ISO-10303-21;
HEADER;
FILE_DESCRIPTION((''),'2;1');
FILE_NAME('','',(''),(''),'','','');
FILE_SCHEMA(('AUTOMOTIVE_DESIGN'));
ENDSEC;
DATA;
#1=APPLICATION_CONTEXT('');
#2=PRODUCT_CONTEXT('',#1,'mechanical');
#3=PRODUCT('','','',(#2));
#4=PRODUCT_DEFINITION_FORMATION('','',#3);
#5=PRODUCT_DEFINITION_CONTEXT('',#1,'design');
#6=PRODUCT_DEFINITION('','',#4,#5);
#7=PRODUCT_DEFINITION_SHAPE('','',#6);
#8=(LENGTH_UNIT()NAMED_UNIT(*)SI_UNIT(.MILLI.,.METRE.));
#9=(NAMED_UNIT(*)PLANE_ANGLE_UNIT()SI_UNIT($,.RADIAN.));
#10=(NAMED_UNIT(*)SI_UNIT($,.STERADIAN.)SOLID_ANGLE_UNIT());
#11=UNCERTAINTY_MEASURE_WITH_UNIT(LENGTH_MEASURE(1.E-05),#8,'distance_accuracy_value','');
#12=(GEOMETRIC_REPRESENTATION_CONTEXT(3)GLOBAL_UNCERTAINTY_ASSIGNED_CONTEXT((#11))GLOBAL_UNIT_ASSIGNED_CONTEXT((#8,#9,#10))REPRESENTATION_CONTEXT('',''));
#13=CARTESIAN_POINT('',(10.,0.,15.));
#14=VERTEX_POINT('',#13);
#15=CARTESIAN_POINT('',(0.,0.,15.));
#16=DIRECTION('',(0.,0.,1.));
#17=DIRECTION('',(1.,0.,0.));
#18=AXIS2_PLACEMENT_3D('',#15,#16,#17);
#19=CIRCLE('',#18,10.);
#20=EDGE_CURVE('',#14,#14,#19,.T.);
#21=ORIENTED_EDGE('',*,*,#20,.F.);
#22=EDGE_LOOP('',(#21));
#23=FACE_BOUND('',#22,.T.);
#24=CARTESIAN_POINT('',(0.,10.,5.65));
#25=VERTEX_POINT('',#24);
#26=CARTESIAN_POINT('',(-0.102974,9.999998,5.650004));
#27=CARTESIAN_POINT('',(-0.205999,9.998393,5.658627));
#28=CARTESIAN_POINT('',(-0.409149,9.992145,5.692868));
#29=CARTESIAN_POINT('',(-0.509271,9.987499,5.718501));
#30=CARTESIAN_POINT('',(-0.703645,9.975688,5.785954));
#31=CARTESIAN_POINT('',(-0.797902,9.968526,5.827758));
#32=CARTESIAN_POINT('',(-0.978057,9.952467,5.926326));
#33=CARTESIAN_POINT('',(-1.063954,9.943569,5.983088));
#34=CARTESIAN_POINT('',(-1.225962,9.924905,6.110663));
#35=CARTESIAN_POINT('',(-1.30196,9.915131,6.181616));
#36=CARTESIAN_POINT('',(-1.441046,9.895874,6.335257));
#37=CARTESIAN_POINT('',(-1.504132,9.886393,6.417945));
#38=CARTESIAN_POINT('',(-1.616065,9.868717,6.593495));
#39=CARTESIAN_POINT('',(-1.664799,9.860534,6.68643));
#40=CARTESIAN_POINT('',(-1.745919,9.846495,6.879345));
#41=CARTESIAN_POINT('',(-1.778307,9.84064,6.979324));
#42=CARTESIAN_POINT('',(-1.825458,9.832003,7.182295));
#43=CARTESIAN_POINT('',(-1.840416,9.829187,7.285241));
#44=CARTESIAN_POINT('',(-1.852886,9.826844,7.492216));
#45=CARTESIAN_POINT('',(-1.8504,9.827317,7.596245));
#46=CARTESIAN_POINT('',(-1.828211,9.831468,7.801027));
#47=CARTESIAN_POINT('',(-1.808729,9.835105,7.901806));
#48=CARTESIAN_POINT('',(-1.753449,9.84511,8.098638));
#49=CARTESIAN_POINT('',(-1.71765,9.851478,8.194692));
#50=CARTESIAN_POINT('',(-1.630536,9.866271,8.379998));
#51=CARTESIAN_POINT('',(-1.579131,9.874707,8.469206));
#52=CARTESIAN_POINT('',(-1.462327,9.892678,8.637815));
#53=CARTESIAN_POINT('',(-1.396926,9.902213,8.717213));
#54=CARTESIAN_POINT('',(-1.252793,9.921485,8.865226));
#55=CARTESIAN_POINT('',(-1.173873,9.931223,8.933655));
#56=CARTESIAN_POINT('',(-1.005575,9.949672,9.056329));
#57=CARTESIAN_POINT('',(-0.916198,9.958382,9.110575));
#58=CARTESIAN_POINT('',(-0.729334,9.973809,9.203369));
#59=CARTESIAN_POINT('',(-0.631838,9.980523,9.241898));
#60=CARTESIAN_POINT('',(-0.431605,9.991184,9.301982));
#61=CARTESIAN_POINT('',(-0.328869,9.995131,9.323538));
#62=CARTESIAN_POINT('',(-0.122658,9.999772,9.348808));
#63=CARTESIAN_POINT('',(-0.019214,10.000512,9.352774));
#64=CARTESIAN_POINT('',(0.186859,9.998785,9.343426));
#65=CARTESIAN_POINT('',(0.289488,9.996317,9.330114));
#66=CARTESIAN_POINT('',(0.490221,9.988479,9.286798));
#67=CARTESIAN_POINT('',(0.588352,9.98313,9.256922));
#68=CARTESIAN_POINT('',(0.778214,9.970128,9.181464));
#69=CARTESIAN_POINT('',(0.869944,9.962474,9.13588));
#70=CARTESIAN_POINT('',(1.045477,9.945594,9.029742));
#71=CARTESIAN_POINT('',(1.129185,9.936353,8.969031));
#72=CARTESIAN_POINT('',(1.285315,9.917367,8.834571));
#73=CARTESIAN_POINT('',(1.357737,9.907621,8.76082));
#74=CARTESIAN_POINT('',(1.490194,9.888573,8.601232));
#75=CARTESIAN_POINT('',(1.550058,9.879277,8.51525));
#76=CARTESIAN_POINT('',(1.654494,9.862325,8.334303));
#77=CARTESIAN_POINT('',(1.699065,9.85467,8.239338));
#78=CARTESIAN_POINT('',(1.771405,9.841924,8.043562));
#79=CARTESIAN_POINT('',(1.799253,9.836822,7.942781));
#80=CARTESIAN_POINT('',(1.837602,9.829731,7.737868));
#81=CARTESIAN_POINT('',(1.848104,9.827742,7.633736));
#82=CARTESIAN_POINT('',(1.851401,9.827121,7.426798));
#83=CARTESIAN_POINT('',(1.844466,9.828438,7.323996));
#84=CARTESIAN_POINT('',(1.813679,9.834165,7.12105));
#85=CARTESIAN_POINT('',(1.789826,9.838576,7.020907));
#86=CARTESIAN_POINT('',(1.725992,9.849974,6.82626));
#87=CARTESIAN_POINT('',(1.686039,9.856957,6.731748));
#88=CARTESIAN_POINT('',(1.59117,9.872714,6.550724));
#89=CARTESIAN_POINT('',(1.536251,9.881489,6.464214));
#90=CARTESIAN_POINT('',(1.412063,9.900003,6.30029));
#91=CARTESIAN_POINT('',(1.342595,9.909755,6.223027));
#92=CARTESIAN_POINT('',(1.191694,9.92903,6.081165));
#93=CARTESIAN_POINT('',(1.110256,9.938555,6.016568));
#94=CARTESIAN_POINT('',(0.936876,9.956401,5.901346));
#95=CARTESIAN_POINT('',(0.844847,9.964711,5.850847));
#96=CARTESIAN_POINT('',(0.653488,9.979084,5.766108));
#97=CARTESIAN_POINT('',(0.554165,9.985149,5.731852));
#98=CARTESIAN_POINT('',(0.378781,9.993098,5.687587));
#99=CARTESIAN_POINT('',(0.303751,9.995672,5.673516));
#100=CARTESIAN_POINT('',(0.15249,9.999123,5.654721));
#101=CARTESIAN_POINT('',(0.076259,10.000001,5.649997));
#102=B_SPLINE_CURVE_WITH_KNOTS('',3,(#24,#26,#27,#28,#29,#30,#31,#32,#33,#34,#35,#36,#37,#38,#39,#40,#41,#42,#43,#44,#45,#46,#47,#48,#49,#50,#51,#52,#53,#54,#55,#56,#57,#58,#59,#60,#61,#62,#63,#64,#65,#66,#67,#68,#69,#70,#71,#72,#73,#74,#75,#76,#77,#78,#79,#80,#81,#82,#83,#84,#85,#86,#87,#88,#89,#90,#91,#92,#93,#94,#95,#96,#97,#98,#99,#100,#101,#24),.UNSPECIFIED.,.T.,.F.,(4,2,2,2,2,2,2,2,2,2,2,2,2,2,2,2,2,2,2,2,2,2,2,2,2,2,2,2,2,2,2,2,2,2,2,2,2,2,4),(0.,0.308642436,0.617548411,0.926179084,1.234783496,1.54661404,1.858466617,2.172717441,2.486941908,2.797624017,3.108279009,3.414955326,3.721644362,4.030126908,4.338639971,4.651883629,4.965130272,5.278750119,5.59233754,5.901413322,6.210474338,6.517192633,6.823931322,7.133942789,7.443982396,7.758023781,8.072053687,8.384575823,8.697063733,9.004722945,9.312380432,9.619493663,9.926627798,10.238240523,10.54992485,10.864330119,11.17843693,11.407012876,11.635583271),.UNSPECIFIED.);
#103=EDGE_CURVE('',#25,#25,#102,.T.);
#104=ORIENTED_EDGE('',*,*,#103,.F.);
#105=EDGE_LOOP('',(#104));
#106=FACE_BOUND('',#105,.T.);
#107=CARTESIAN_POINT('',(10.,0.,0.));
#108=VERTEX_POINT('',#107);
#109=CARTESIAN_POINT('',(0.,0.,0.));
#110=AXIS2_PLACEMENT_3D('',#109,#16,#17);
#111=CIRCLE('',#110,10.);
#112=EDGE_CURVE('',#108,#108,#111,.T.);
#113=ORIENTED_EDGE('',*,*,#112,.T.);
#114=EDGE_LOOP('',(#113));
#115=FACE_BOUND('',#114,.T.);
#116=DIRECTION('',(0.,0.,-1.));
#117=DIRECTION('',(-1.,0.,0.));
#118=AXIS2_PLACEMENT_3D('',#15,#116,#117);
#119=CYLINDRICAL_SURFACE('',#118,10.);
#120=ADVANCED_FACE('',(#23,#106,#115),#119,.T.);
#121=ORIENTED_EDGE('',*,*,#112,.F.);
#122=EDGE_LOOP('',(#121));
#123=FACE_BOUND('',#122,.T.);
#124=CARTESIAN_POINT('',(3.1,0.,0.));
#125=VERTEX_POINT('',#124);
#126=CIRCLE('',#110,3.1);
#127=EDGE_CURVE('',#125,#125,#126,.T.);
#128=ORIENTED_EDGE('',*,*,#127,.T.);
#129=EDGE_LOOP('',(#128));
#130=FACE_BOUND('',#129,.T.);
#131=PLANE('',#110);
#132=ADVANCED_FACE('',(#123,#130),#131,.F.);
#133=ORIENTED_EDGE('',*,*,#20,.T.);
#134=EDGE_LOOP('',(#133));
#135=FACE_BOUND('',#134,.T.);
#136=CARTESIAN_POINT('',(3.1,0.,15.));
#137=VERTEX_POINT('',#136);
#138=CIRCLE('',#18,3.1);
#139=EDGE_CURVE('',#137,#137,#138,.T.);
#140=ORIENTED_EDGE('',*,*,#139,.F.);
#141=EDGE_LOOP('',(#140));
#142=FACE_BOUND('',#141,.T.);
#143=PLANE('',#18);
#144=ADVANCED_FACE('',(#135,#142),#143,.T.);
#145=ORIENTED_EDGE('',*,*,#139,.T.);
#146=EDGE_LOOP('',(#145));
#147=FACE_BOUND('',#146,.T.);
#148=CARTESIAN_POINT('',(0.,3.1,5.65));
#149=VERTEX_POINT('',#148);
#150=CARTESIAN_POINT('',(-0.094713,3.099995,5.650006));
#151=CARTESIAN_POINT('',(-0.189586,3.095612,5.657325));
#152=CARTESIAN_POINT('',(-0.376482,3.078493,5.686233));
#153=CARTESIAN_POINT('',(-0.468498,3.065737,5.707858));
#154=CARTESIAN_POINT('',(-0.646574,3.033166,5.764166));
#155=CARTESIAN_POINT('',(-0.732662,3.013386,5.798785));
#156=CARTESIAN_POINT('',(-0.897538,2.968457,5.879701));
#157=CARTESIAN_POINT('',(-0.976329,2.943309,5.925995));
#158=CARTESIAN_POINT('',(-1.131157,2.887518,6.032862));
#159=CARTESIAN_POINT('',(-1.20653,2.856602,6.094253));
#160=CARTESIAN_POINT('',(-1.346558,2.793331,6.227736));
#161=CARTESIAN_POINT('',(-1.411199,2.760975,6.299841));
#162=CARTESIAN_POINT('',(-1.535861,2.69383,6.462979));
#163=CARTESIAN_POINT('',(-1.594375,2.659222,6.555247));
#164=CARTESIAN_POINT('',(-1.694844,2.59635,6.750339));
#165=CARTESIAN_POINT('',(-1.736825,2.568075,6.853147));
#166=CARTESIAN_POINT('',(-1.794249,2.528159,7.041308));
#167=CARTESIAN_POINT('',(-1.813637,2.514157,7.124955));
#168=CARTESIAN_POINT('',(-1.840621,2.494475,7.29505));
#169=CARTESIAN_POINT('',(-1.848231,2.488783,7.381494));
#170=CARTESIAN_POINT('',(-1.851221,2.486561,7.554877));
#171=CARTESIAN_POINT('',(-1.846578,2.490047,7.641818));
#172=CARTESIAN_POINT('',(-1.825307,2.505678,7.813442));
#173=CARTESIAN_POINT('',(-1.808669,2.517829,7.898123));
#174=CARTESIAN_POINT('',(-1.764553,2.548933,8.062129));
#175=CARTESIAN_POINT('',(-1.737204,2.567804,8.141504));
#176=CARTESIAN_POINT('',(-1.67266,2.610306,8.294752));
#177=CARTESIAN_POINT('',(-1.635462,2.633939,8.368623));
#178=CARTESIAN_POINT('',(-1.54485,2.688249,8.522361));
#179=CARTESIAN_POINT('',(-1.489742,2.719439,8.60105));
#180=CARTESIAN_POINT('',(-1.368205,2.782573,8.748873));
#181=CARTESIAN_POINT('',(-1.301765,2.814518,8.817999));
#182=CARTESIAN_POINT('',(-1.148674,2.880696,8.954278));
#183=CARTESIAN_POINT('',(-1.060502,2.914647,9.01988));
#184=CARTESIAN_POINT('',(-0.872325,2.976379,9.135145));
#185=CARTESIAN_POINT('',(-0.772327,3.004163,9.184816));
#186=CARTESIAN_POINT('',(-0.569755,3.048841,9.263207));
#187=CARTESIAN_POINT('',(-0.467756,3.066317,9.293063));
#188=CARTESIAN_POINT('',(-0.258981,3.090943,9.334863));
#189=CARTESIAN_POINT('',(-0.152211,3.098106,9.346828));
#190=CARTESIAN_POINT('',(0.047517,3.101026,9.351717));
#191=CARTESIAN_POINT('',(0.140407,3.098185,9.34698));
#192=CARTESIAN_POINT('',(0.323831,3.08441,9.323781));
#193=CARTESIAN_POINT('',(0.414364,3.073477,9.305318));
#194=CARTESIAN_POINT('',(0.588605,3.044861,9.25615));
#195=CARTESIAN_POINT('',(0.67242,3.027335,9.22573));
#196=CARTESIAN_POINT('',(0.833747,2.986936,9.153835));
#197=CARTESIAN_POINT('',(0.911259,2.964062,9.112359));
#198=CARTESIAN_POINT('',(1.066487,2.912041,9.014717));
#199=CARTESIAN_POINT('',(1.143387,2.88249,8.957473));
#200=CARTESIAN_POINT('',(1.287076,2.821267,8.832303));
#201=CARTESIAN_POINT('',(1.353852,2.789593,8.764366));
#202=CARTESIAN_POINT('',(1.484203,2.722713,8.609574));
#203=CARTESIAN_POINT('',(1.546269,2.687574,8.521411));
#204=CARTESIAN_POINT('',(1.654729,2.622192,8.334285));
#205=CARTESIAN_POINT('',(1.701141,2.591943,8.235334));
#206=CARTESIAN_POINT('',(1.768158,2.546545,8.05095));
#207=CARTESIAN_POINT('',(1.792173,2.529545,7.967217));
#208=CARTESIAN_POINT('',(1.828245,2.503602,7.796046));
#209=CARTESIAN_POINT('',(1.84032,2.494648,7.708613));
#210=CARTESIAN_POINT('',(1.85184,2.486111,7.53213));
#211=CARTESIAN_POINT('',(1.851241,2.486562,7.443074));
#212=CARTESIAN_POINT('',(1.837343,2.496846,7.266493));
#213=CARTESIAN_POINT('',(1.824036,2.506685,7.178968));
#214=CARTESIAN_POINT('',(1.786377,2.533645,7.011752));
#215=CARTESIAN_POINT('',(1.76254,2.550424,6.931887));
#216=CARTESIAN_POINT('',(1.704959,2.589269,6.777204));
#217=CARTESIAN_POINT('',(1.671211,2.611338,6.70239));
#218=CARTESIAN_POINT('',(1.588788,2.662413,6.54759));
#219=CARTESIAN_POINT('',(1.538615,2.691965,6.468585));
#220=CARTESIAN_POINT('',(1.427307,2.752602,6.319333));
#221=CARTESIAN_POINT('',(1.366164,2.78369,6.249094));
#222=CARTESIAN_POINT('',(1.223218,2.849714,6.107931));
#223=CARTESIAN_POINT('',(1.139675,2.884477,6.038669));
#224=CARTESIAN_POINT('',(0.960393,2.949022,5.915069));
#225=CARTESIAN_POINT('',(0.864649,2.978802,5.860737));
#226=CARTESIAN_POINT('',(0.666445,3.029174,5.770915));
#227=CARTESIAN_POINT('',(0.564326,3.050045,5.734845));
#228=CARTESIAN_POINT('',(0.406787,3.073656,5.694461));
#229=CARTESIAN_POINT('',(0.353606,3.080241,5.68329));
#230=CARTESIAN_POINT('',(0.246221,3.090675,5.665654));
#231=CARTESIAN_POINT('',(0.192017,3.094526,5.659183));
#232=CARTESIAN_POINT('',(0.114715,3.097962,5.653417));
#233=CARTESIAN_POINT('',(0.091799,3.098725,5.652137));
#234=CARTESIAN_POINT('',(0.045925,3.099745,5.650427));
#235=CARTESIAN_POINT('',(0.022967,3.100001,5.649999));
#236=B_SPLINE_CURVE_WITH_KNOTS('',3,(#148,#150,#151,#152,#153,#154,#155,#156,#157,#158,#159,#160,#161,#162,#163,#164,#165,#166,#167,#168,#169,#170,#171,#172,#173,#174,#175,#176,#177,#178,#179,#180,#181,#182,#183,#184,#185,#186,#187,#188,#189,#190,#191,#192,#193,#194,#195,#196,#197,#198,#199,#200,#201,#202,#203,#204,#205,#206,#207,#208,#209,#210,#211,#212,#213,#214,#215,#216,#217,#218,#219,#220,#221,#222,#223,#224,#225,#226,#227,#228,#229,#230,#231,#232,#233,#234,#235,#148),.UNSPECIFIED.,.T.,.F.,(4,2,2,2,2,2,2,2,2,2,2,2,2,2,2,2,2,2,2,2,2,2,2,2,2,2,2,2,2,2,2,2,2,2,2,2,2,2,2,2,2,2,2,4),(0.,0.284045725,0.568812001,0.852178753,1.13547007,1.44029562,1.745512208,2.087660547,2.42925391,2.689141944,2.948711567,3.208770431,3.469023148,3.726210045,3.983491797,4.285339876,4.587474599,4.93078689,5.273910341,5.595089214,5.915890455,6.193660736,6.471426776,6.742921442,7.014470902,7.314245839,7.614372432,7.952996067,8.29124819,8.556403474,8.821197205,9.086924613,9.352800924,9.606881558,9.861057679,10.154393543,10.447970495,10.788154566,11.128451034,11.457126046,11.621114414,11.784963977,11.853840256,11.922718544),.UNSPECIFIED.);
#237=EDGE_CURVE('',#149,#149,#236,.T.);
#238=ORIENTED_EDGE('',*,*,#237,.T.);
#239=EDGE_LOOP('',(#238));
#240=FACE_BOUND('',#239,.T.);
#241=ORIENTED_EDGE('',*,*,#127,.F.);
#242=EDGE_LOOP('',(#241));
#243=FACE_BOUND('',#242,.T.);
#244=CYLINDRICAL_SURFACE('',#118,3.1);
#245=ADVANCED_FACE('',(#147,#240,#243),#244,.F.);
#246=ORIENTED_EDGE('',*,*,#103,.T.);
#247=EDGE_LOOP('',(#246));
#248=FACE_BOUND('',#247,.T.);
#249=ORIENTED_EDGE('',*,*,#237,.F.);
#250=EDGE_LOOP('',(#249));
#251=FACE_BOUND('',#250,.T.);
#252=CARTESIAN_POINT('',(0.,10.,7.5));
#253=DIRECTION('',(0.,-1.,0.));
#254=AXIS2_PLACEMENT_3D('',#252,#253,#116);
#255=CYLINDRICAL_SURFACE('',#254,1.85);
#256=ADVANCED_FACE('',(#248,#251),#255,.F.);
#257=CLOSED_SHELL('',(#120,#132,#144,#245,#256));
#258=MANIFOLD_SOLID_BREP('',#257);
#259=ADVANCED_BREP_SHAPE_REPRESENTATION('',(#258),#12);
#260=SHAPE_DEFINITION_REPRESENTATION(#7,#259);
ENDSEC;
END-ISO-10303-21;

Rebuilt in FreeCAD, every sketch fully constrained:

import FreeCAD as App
import Part
import Sketcher

doc = App.newDocument("Part")
params = doc.addObject("Spreadsheet::Sheet", "Params")
for row, (alias, value) in enumerate([
    ("sketch1_diameter", "20 mm"),
    ("sketch1_diameter2", "6.2 mm"),
    ("pad1_length", "15 mm"),
    ("sketch2_diameter", "3.7 mm"),
], start=1):
    params.set(f"A{row}", alias)
    params.set(f"B{row}", "=" + value)
    params.setAlias(f"B{row}", alias)

body = doc.addObject("PartDesign::Body", "Body")

# Sketch on XY plane
sketch1 = doc.addObject("Sketcher::SketchObject", "Sketch")
body.addObject(sketch1)
sketch1.AttachmentSupport = (doc.XY_Plane, [""])
sketch1.MapMode = "FlatFace"
sketch1.addGeometry(Part.Circle(App.Vector(0, 0, 0), App.Vector(0, 0, 1), 10), False)
sketch1.addGeometry(Part.Circle(App.Vector(0, 0, 0), App.Vector(0, 0, 1), 3.1), False)
sketch1.addConstraint(Sketcher.Constraint("Coincident", 0, 3, -1, 1))
sketch1.addConstraint(Sketcher.Constraint("Coincident", 1, 3, -1, 1))
sketch1.addConstraint(Sketcher.Constraint("Diameter", 0, 20.0))
sketch1.addConstraint(Sketcher.Constraint("Diameter", 1, 6.2))
sketch1.setExpression("Constraints[2]", "Params.sketch1_diameter")
sketch1.setExpression("Constraints[3]", "Params.sketch1_diameter2")
pad1 = doc.addObject("PartDesign::Pad", "Pad")
body.addObject(pad1)
pad1.Profile = sketch1
pad1.setExpression("Length", "Params.pad1_length")

# Sketch on XZ plane
sketch2 = doc.addObject("Sketcher::SketchObject", "Sketch001")
body.addObject(sketch2)
sketch2.AttachmentSupport = (doc.XZ_Plane, [""])
sketch2.MapMode = "FlatFace"
sketch2.addGeometry(Part.Circle(App.Vector(0, 7.5, 0), App.Vector(0, 0, 1), 1.9), False)
sketch2.addConstraint(Sketcher.Constraint("PointOnObject", 0, 3, -2))
sketch2.addConstraint(Sketcher.Constraint("Diameter", 0, 3.7))
sketch2.addConstraint(Sketcher.Constraint("DistanceY", -1, 1, 0, 3, 7.5))
sketch2.setExpression("Constraints[1]", "Params.sketch2_diameter")
pocket1 = doc.addObject("PartDesign::Pocket", "Pocket")
body.addObject(pocket1)
pocket1.Profile = sketch2
pocket1.Type = "ThroughAll"

doc.recompute()
